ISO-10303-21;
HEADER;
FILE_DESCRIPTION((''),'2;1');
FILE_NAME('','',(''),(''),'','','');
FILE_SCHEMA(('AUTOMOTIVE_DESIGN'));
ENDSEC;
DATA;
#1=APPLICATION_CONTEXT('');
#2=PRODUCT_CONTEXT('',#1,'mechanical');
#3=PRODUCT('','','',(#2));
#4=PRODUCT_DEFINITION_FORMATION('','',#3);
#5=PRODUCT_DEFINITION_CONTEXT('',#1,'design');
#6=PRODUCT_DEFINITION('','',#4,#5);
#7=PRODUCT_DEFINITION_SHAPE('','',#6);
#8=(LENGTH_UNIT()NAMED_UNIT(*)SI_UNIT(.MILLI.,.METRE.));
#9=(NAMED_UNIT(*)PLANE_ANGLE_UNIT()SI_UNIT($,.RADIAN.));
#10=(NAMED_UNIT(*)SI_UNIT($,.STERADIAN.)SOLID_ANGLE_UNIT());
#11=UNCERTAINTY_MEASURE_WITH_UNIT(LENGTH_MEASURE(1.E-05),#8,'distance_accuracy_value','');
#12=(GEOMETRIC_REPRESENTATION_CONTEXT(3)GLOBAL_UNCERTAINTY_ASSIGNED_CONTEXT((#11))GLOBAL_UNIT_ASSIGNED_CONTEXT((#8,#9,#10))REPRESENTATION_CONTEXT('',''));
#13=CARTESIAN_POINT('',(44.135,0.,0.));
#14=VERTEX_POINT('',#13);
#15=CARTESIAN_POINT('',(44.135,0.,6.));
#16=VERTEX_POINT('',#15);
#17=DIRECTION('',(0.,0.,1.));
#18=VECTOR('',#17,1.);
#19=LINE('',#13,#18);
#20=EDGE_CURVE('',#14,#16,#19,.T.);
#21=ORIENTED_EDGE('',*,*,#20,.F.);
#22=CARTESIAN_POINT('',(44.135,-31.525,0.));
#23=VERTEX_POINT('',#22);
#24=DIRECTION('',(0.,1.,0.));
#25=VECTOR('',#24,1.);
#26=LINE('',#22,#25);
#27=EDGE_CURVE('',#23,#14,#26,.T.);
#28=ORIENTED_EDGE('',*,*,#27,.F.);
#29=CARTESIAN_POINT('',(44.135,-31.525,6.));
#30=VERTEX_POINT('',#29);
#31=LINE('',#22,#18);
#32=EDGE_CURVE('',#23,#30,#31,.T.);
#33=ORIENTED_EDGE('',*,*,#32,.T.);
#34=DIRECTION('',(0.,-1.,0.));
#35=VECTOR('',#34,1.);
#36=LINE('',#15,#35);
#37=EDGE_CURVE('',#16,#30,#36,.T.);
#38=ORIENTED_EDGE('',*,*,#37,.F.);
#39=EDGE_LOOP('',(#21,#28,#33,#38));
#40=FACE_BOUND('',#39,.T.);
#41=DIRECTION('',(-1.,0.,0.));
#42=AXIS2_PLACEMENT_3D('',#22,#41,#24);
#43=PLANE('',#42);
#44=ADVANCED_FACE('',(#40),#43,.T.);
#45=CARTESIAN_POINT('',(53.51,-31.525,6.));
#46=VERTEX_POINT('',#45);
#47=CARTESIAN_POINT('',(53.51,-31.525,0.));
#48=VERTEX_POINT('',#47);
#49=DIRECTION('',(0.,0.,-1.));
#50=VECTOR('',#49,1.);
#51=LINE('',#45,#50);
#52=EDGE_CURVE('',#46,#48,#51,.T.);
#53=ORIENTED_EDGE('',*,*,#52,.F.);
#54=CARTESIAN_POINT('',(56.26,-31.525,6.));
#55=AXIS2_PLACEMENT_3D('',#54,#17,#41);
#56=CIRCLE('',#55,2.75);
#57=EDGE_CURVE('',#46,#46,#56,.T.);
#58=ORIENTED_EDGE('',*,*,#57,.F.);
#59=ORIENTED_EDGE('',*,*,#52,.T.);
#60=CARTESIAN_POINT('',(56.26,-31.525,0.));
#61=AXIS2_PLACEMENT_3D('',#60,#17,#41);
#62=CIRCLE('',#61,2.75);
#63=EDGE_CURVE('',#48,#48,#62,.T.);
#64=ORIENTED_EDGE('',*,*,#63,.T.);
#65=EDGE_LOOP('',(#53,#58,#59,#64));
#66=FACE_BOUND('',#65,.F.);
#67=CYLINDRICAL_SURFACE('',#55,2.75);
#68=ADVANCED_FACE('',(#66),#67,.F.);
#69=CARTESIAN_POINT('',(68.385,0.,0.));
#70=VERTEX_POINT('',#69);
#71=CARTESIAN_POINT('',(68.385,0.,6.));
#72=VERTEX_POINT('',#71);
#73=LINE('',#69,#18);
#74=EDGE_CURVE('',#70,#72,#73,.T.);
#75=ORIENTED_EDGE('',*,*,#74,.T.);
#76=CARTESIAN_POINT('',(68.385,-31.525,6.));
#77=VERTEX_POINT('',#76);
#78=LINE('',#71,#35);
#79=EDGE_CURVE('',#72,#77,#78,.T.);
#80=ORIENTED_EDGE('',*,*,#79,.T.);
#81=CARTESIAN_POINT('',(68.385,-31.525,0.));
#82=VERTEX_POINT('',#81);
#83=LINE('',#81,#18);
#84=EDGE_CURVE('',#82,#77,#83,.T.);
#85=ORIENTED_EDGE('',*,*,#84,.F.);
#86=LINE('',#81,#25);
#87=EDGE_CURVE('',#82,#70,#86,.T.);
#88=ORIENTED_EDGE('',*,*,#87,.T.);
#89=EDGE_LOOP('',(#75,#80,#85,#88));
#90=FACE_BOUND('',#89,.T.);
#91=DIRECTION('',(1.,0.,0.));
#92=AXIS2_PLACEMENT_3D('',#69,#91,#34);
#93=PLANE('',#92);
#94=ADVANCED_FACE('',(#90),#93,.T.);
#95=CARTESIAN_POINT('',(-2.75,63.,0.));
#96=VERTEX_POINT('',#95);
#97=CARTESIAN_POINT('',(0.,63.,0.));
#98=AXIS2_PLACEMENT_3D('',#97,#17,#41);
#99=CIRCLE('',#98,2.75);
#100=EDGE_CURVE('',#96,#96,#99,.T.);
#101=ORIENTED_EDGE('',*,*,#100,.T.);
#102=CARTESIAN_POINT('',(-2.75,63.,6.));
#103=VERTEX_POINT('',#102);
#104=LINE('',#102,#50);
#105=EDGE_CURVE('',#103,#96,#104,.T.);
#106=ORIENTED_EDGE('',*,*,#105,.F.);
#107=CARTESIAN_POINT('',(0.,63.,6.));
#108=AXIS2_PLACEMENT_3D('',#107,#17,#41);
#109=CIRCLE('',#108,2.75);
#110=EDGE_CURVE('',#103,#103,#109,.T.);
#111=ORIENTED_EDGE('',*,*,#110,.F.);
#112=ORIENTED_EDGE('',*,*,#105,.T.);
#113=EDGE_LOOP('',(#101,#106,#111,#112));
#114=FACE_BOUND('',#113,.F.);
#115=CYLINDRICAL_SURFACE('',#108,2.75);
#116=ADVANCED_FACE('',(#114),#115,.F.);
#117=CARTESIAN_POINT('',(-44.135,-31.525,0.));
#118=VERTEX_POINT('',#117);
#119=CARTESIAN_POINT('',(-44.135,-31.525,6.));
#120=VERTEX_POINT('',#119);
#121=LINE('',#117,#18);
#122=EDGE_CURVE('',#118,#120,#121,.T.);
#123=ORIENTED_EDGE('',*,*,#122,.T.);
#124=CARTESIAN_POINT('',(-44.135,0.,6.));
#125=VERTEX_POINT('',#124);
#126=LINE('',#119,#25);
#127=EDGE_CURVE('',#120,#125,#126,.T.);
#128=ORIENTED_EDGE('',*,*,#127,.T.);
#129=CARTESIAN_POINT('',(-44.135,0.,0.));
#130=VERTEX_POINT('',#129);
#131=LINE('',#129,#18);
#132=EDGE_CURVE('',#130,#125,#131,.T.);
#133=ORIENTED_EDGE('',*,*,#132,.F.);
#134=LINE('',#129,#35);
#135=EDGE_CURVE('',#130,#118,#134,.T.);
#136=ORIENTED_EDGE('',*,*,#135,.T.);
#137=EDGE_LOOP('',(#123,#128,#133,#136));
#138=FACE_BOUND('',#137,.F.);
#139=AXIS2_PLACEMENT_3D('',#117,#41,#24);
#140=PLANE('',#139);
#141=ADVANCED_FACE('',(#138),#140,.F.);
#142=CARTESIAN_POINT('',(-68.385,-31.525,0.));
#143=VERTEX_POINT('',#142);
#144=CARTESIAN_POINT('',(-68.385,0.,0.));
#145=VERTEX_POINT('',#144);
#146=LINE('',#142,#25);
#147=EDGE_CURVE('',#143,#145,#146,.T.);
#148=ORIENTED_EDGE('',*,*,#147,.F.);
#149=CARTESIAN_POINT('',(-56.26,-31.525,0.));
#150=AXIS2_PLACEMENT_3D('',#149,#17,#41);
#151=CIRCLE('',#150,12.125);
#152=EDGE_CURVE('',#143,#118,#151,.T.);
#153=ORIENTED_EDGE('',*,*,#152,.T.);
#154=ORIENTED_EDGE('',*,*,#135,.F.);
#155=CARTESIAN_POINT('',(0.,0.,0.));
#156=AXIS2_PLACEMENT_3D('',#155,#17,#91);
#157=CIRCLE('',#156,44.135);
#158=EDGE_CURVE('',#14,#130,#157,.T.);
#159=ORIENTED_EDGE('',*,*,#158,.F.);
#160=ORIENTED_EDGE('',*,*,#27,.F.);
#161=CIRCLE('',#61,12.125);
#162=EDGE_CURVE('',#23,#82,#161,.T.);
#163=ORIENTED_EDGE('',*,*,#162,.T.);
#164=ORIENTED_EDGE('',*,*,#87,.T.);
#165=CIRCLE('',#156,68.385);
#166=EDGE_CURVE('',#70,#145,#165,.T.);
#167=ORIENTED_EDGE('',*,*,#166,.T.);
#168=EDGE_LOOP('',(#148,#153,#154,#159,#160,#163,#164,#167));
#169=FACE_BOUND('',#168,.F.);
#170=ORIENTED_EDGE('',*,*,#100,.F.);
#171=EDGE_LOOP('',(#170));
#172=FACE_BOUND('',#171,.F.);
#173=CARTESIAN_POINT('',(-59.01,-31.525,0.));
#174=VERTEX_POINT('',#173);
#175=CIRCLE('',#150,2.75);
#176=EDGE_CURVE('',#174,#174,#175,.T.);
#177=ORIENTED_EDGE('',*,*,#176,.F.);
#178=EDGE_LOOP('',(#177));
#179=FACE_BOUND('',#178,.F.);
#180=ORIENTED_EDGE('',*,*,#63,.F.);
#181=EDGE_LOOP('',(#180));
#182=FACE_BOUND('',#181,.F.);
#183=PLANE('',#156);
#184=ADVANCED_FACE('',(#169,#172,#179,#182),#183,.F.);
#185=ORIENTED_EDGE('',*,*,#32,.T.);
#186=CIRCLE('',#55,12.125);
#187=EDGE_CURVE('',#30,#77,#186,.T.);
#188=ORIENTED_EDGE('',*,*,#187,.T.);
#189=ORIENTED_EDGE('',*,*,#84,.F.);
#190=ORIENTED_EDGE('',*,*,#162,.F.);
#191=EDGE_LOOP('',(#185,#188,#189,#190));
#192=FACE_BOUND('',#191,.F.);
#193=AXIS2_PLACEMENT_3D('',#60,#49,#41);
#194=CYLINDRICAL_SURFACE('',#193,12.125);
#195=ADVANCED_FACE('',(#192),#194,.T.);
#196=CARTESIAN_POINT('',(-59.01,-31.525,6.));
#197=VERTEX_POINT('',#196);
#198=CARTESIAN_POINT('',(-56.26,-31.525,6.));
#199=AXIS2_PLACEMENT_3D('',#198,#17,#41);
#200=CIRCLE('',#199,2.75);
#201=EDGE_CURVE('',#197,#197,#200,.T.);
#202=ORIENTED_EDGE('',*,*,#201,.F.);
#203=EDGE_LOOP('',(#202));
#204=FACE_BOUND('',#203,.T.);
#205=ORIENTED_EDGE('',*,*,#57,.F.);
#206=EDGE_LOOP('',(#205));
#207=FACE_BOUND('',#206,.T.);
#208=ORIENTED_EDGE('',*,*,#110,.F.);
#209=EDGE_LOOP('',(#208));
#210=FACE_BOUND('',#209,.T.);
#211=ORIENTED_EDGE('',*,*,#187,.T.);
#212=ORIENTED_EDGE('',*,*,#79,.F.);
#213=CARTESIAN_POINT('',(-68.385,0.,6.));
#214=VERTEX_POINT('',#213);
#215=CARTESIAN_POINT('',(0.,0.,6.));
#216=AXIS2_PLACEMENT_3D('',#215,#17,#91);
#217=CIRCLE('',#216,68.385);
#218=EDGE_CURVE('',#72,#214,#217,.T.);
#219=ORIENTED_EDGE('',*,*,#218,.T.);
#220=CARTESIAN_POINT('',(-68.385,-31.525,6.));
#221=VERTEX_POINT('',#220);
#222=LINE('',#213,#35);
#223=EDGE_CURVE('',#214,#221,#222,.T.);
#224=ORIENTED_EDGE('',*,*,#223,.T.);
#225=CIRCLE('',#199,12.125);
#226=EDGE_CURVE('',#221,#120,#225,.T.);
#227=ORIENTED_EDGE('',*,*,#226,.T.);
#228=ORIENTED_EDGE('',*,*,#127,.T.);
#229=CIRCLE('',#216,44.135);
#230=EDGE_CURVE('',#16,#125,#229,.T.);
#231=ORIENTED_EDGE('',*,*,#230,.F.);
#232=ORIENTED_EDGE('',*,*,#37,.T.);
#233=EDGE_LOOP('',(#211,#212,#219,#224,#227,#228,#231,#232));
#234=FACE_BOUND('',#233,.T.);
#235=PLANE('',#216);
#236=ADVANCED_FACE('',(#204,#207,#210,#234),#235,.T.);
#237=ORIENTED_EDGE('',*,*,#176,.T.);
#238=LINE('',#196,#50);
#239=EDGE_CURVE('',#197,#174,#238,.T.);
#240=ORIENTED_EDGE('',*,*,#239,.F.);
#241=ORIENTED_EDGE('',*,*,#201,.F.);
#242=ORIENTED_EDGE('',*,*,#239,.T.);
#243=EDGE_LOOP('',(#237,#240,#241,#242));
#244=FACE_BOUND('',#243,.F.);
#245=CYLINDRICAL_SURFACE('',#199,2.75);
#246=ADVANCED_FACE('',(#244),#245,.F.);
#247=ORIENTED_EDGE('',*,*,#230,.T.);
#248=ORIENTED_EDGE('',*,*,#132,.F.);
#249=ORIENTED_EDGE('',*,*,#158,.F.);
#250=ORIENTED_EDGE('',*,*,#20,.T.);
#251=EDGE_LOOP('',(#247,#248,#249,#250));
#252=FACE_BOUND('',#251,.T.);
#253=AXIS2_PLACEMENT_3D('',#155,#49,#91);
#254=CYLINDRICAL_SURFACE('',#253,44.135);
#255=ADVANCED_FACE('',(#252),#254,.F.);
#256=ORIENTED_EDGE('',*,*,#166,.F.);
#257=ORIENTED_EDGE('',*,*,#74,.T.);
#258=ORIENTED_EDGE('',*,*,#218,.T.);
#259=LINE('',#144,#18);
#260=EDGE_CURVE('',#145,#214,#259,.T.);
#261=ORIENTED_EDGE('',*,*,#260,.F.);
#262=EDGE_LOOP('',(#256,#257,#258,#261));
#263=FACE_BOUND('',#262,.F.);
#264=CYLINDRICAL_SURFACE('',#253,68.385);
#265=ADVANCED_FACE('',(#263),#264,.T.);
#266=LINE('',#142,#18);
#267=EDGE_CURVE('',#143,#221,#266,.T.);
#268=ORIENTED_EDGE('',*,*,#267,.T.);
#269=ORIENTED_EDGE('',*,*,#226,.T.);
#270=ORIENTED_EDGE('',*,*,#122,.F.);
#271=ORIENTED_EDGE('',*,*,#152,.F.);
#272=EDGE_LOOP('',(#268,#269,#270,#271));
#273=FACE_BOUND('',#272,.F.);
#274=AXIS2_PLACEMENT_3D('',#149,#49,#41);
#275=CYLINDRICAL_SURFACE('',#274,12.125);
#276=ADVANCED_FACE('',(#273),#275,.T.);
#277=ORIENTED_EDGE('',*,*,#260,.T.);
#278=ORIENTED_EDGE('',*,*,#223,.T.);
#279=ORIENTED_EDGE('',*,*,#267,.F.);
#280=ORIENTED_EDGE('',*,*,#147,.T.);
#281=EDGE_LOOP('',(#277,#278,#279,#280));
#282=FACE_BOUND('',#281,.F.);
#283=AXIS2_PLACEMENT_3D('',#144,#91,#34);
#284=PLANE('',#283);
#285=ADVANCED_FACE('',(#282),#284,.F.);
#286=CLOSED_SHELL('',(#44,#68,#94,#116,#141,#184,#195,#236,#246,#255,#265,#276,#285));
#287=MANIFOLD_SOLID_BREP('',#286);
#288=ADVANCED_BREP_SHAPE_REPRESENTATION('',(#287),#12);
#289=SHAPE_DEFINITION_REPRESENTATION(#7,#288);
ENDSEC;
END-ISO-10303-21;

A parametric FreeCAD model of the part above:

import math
import FreeCAD as App
import Part
import Sketcher

V = App.Vector

doc = App.newDocument("Part")
body = doc.addObject("PartDesign::Body", "Body")

sketch1 = body.newObject("Sketcher::SketchObject", "Sketch")
sketch1.AttachmentSupport = (doc.getObject("XY_Plane"), [""])
sketch1.MapMode = "FlatFace"
sketch1.addGeometry([
    Part.LineSegment(V(68, -32, 0), V(68, 0, 0)),
    Part.ArcOfCircle(Part.Circle(V(0, 0, 0), V(0, 0, 1), 68), math.radians(0), math.radians(180)),
    Part.LineSegment(V(-68, 0, 0), V(-68, -32, 0)),
    Part.ArcOfCircle(Part.Circle(V(-56, -32, 0), V(0, 0, 1), 12), math.radians(180), math.radians(360)),
    Part.LineSegment(V(-44, -32, 0), V(-44, 0, 0)),
    Part.ArcOfCircle(Part.Circle(V(0, 0, 0), V(0, 0, 1), 44), math.radians(0), math.radians(180)),
    Part.LineSegment(V(44, 0, 0), V(44, -32, 0)),
    Part.ArcOfCircle(Part.Circle(V(56, -32, 0), V(0, 0, 1), 12), math.radians(180), math.radians(360)),
], False)
sketch1.addConstraint([
    Sketcher.Constraint("Tangent", 0, 2, 1, 1),
    Sketcher.Constraint("Tangent", 1, 2, 2, 1),
    Sketcher.Constraint("Tangent", 2, 2, 3, 1),
    Sketcher.Constraint("Tangent", 3, 2, 4, 1),
    Sketcher.Constraint("Tangent", 4, 2, 5, 2),
    Sketcher.Constraint("Tangent", 5, 1, 6, 1),
    Sketcher.Constraint("Tangent", 6, 2, 7, 1),
    Sketcher.Constraint("Tangent", 7, 2, 0, 1),
    Sketcher.Constraint("Vertical", 0),
    Sketcher.Constraint("Vertical", 2),
    Sketcher.Constraint("Vertical", 4),
    Sketcher.Constraint("Vertical", 6),
    Sketcher.Constraint("Coincident", 1, 3, -1, 1),
    Sketcher.Constraint("Coincident", 5, 3, -1, 1),
    Sketcher.Constraint("Horizontal", 3, 3, 7, 3),
    Sketcher.Constraint("Radius", 1, 68.385),
    Sketcher.Constraint("Radius", 3, 12.125),
    Sketcher.Constraint("DistanceY", 0, 1, 0, 2, 31.525),
])
pad1 = body.newObject("PartDesign::Pad", "Pad")
pad1.Profile = sketch1
pad1.Length = 6

sketch2 = body.newObject("Sketcher::SketchObject", "Sketch001")
sketch2.AttachmentSupport = (doc.getObject("XY_Plane"), [""])
sketch2.MapMode = "FlatFace"
sketch2.AttachmentOffset = App.Placement(V(0, 0, 6), App.Rotation())
sketch2.addGeometry([
    Part.Circle(V(-56.3, -31.5, 0), V(0, 0, 1), 2.8),
    Part.Circle(V(56.3, -31.5, 0), V(0, 0, 1), 2.8),
    Part.Circle(V(0, 63, 0), V(0, 0, 1), 2.8),
], False)
sketch2.addConstraint([
    Sketcher.Constraint("Equal", 0, 1),
    Sketcher.Constraint("Equal", 1, 2),
    Sketcher.Constraint("Symmetric", 0, 3, 1, 3, -2),
    Sketcher.Constraint("PointOnObject", 2, 3, -2),
    Sketcher.Constraint("Diameter", 0, 5.5),
    Sketcher.Constraint("DistanceY", -1, 1, 2, 3, 63.0),
    Sketcher.Constraint("DistanceX", 0, 3, -1, 1, 56.26),
    Sketcher.Constraint("DistanceY", 0, 3, -1, 1, 31.525),
])
pocket1 = body.newObject("PartDesign::Pocket", "Pocket")
pocket1.Profile = sketch2
pocket1.Length = 6

doc.recompute()
